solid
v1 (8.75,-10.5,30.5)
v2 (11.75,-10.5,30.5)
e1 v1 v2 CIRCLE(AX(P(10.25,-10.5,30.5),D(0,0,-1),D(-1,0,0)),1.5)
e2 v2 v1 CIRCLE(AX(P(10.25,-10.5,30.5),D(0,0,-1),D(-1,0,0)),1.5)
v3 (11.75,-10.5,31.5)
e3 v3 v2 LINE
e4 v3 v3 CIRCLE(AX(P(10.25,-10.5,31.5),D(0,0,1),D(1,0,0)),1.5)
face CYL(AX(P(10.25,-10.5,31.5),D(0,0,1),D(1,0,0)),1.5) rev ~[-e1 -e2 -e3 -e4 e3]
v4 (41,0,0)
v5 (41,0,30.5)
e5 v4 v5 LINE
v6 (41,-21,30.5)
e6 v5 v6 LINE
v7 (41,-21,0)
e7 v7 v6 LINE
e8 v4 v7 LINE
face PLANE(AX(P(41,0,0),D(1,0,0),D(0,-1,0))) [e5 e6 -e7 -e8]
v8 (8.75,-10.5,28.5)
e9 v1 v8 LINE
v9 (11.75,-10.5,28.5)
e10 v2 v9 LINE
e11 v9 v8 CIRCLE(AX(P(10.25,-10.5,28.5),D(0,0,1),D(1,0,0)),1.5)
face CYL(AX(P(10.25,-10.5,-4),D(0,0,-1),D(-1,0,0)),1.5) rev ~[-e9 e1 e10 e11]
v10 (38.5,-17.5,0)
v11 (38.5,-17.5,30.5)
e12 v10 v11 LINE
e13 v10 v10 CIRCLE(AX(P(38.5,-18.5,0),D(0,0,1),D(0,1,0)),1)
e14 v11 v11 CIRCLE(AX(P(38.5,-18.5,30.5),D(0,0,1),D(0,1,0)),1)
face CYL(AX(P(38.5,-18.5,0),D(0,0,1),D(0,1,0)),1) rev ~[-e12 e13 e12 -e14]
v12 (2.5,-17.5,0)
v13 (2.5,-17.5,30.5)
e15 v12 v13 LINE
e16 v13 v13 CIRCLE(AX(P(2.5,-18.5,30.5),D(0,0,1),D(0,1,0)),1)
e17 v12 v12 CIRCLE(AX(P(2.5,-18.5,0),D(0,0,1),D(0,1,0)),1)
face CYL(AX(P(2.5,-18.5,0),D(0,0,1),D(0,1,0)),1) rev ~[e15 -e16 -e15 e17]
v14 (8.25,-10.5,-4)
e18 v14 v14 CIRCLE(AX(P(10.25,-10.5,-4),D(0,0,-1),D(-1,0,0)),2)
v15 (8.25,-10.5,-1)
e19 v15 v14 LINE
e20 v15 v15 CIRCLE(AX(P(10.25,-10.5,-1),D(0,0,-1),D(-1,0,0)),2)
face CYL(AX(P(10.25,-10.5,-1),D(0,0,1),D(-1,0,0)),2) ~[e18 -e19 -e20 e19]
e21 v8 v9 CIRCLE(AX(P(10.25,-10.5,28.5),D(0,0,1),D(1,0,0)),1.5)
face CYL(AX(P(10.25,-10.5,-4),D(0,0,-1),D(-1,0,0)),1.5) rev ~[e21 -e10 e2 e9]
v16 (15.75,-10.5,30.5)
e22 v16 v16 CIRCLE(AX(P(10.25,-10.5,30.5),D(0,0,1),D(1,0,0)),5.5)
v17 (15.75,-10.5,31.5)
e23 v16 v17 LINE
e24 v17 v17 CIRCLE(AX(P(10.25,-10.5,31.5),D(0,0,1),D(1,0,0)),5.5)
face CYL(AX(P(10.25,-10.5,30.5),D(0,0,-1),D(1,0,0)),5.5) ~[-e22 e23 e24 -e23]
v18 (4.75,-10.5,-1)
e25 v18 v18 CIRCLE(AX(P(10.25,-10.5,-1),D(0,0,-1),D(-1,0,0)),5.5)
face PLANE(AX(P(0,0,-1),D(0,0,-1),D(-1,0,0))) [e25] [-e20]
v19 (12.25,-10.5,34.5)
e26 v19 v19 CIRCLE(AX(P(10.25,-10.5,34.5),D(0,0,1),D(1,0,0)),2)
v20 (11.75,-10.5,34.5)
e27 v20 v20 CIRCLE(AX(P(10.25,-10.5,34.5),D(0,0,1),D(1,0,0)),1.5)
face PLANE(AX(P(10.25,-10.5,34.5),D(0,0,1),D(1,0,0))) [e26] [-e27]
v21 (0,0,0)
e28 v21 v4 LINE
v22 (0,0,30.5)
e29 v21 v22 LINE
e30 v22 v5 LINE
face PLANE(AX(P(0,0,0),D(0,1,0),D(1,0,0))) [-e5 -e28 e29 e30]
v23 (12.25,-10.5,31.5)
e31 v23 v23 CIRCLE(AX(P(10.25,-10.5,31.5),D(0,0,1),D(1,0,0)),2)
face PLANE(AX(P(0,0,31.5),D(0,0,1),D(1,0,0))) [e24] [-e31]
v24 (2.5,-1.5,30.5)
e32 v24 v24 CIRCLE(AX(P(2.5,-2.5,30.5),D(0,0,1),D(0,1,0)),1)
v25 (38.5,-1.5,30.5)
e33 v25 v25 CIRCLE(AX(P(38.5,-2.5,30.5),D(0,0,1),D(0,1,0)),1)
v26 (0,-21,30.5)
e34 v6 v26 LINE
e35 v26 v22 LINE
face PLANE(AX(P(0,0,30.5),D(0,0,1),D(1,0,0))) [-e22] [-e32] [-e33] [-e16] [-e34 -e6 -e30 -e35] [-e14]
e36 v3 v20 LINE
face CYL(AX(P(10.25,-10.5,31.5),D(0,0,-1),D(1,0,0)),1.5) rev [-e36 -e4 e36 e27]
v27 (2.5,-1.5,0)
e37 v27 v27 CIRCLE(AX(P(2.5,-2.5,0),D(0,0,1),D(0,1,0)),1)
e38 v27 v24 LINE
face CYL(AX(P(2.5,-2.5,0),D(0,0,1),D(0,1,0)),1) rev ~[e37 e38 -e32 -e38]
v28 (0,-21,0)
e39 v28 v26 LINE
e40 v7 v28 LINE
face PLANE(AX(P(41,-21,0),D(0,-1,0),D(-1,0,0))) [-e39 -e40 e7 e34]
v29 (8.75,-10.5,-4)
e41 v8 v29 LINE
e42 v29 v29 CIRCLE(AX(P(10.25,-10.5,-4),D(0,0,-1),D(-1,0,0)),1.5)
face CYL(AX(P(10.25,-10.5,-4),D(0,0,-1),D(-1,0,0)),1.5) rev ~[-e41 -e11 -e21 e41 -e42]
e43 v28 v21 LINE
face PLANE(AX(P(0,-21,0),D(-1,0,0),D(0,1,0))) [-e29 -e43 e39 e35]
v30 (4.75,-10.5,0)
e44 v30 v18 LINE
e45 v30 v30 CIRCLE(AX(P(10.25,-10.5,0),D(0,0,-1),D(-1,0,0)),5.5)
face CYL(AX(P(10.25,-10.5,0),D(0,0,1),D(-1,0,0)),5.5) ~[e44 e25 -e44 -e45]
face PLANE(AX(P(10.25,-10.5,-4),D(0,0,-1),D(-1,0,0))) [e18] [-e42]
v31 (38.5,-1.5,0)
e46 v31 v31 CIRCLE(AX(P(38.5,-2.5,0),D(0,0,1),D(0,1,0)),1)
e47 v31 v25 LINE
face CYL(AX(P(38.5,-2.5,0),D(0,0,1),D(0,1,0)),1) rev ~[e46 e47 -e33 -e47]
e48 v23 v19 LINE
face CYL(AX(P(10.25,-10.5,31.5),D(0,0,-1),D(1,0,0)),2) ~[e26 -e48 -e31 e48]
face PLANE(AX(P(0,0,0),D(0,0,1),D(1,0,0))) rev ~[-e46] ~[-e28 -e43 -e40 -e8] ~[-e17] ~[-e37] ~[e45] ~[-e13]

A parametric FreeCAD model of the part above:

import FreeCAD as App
import Part
import Sketcher
from FreeCAD import Vector

doc = App.newDocument("Part")
params = doc.addObject("Spreadsheet::Sheet", "Params")
for row, (alias, value) in enumerate([
    ("sketch1_width", "41 mm"),
    ("sketch1_height", "21 mm"),
    ("pad1_length", "30.5 mm"),
    ("sketch2_diameter", "2 mm"),
    ("hole_diameter", "2 mm"),
    ("sketch3_diameter", "11 mm"),
    ("pad2_length", "1 mm"),
    ("sketch4_diameter", "3 mm"),
    ("pocket1_length", "40 mm"),
    ("sketch5_diameter", "4 mm"),
    ("pad3_length", "3 mm"),
    ("sketch6_diameter", "3 mm"),
    ("pocket2_length", "4 mm"),
    ("sketch7_diameter", "11 mm"),
    ("pad4_length", "1 mm"),
    ("sketch8_diameter", "4 mm"),
    ("sketch8_diameter2", "3 mm"),
    ("pad5_length", "3 mm"),
    ("sketch9_diameter", "3 mm"),
    ("pocket3_length", "3 mm"),
], start=1):
    params.set(f"A{row}", alias)
    params.set(f"B{row}", "=" + value)
    params.setAlias(f"B{row}", alias)

body = doc.addObject("PartDesign::Body", "Body")

sketch1 = body.newObject("Sketcher::SketchObject", "Sketch")
sketch1.AttachmentSupport = (doc.getObject("XY_Plane"), [""])
sketch1.MapMode = "FlatFace"
sketch1.addGeometry([
    Part.LineSegment(Vector(41, 0, 0), Vector(0, 0, 0)),
    Part.LineSegment(Vector(0, 0, 0), Vector(0, -21, 0)),
    Part.LineSegment(Vector(0, -21, 0), Vector(41, -21, 0)),
    Part.LineSegment(Vector(41, -21, 0), Vector(41, 0, 0)),
], False)
sketch1.addConstraint([
    Sketcher.Constraint("Coincident", 0, 2, 1, 1),
    Sketcher.Constraint("Coincident", 1, 2, 2, 1),
    Sketcher.Constraint("Coincident", 2, 2, 3, 1),
    Sketcher.Constraint("Coincident", 3, 2, 0, 1),
    Sketcher.Constraint("Horizontal", 0),
    Sketcher.Constraint("Vertical", 1),
    Sketcher.Constraint("Horizontal", 2),
    Sketcher.Constraint("Vertical", 3),
    Sketcher.Constraint("Coincident", 0, 2, -1, 1),
    Sketcher.Constraint("DistanceX", 0, 2, 0, 1, 41.0),
    Sketcher.Constraint("DistanceY", 1, 2, 1, 1, 21.0),
])
sketch1.setExpression("Constraints[9]", "Params.sketch1_width")
sketch1.setExpression("Constraints[10]", "Params.sketch1_height")
pad1 = body.newObject("PartDesign::Pad", "Pad")
pad1.Profile = sketch1
pad1.setExpression("Length", "Params.pad1_length")

sketch2 = body.newObject("Sketcher::SketchObject", "Sketch001")
sketch2.AttachmentSupport = (doc.getObject("XY_Plane"), [""])
sketch2.MapMode = "FlatFace"
sketch2.addGeometry([
    Part.Circle(Vector(2.5, -2.5, 0), Vector(0, 0, 1), 1),
    Part.Circle(Vector(38.5, -2.5, 0), Vector(0, 0, 1), 1),
    Part.Circle(Vector(2.5, -18.5, 0), Vector(0, 0, 1), 1),
    Part.Circle(Vector(38.5, -18.5, 0), Vector(0, 0, 1), 1),
], False)
sketch2.addConstraint([
    Sketcher.Constraint("Equal", 0, 1),
    Sketcher.Constraint("Equal", 1, 2),
    Sketcher.Constraint("Equal", 2, 3),
    Sketcher.Constraint("Horizontal", 0, 3, 1, 3),
    Sketcher.Constraint("Horizontal", 2, 3, 3, 3),
    Sketcher.Constraint("Vertical", 0, 3, 2, 3),
    Sketcher.Constraint("Vertical", 1, 3, 3, 3),
    Sketcher.Constraint("Diameter", 0, 2.0),
    Sketcher.Constraint("DistanceX", 0, 3, 1, 3, 36.0),
    Sketcher.Constraint("DistanceY", 2, 3, 0, 3, 16.0),
    Sketcher.Constraint("DistanceX", -1, 1, 0, 3, 2.5),
    Sketcher.Constraint("DistanceY", 0, 3, -1, 1, 2.5),
])
sketch2.setExpression("Constraints[7]", "Params.sketch2_diameter")
doc.recompute()
hole = body.newObject("PartDesign::Hole", "Hole")
hole.Profile = sketch2
hole.ThreadType = "None"
hole.setExpression("Diameter", "Params.hole_diameter")
hole.DepthType = "ThroughAll"
hole.Reversed = True

sketch3 = body.newObject("Sketcher::SketchObject", "Sketch002")
sketch3.AttachmentSupport = (doc.getObject("XY_Plane"), [""])
sketch3.MapMode = "FlatFace"
sketch3.addGeometry(Part.Circle(Vector(10, -10, 0), Vector(0, 0, 1), 6), False)
sketch3.addConstraint([
    Sketcher.Constraint("Diameter", 0, 11.0),
    Sketcher.Constraint("DistanceY", 0, 3, -1, 1, 10.5),
    Sketcher.Constraint("DistanceX", -1, 1, 0, 3, 10.25),
])
sketch3.setExpression("Constraints[0]", "Params.sketch3_diameter")
pad2 = body.newObject("PartDesign::Pad", "Pad001")
pad2.Profile = sketch3
pad2.setExpression("Length", "Params.pad2_length")
pad2.Reversed = True

sketch4 = body.newObject("Sketcher::SketchObject", "Sketch003")
sketch4.AttachmentSupport = (doc.getObject("XY_Plane"), [""])
sketch4.MapMode = "FlatFace"
sketch4.AttachmentOffset = App.Placement(Vector(0, 0, -1), App.Rotation())
sketch4.addGeometry(Part.Circle(Vector(10.2, -10.5, 0), Vector(0, 0, 1), 1.5), False)
sketch4.addConstraint([
    Sketcher.Constraint("Diameter", 0, 3.0),
    Sketcher.Constraint("DistanceY", 0, 3, -1, 1, 10.5),
    Sketcher.Constraint("DistanceX", -1, 1, 0, 3, 10.25),
])
sketch4.setExpression("Constraints[0]", "Params.sketch4_diameter")
pocket1 = body.newObject("PartDesign::Pocket", "Pocket")
pocket1.Profile = sketch4
pocket1.setExpression("Length", "Params.pocket1_length")
pocket1.Reversed = True

sketch5 = body.newObject("Sketcher::SketchObject", "Sketch004")
sketch5.AttachmentSupport = (doc.getObject("XY_Plane"), [""])
sketch5.MapMode = "FlatFace"
sketch5.AttachmentOffset = App.Placement(Vector(0, 0, -1), App.Rotation())
sketch5.addGeometry(Part.Circle(Vector(10.2, -10.5, 0), Vector(0, 0, 1), 2), False)
sketch5.addConstraint([
    Sketcher.Constraint("Diameter", 0, 4.0),
    Sketcher.Constraint("DistanceY", 0, 3, -1, 1, 10.5),
    Sketcher.Constraint("DistanceX", -1, 1, 0, 3, 10.25),
])
sketch5.setExpression("Constraints[0]", "Params.sketch5_diameter")
pad3 = body.newObject("PartDesign::Pad", "Pad002")
pad3.Profile = sketch5
pad3.setExpression("Length", "Params.pad3_length")
pad3.Reversed = True

sketch6 = body.newObject("Sketcher::SketchObject", "Sketch005")
sketch6.AttachmentSupport = (doc.getObject("XY_Plane"), [""])
sketch6.MapMode = "FlatFace"
sketch6.AttachmentOffset = App.Placement(Vector(0, 0, -4), App.Rotation())
sketch6.addGeometry(Part.Circle(Vector(10.2, -10.5, 0), Vector(0, 0, 1), 1.5), False)
sketch6.addConstraint([
    Sketcher.Constraint("Diameter", 0, 3.0),
    Sketcher.Constraint("DistanceY", 0, 3, -1, 1, 10.5),
    Sketcher.Constraint("DistanceX", -1, 1, 0, 3, 10.25),
])
sketch6.setExpression("Constraints[0]", "Params.sketch6_diameter")
pocket2 = body.newObject("PartDesign::Pocket", "Pocket001")
pocket2.Profile = sketch6
pocket2.setExpression("Length", "Params.pocket2_length")
pocket2.Reversed = True

sketch7 = body.newObject("Sketcher::SketchObject", "Sketch006")
sketch7.AttachmentSupport = (doc.getObject("XY_Plane"), [""])
sketch7.MapMode = "FlatFace"
sketch7.AttachmentOffset = App.Placement(Vector(0, 0, 30.5), App.Rotation())
sketch7.addGeometry(Part.Circle(Vector(10, -10, 0), Vector(0, 0, 1), 6), False)
sketch7.addConstraint([
    Sketcher.Constraint("Diameter", 0, 11.0),
    Sketcher.Constraint("DistanceY", 0, 3, -1, 1, 10.5),
    Sketcher.Constraint("DistanceX", -1, 1, 0, 3, 10.25),
])
sketch7.setExpression("Constraints[0]", "Params.sketch7_diameter")
pad4 = body.newObject("PartDesign::Pad", "Pad003")
pad4.Profile = sketch7
pad4.setExpression("Length", "Params.pad4_length")

sketch8 = body.newObject("Sketcher::SketchObject", "Sketch007")
sketch8.AttachmentSupport = (doc.getObject("XY_Plane"), [""])
sketch8.MapMode = "FlatFace"
sketch8.AttachmentOffset = App.Placement(Vector(0, 0, 31.5), App.Rotation())
sketch8.addGeometry([
    Part.Circle(Vector(10.2, -10.5, 0), Vector(0, 0, 1), 2),
    Part.Circle(Vector(10.2, -10.5, 0), Vector(0, 0, 1), 1.5),
], False)
sketch8.addConstraint([
    Sketcher.Constraint("Coincident", 1, 3, 0, 3),
    Sketcher.Constraint("Diameter", 0, 4.0),
    Sketcher.Constraint("Diameter", 1, 3.0),
    Sketcher.Constraint("DistanceY", 0, 3, -1, 1, 10.5),
    Sketcher.Constraint("DistanceX", -1, 1, 0, 3, 10.25),
])
sketch8.setExpression("Constraints[1]", "Params.sketch8_diameter")
sketch8.setExpression("Constraints[2]", "Params.sketch8_diameter2")
pad5 = body.newObject("PartDesign::Pad", "Pad004")
pad5.Profile = sketch8
pad5.setExpression("Length", "Params.pad5_length")

sketch9 = body.newObject("Sketcher::SketchObject", "Sketch008")
sketch9.AttachmentSupport = (doc.getObject("XY_Plane"), [""])
sketch9.MapMode = "FlatFace"
sketch9.AttachmentOffset = App.Placement(Vector(0, 0, 31.5), App.Rotation())
sketch9.addGeometry(Part.Circle(Vector(10.2, -10.5, 0), Vector(0, 0, 1), 1.5), False)
sketch9.addConstraint([
    Sketcher.Constraint("Diameter", 0, 3.0),
    Sketcher.Constraint("DistanceY", 0, 3, -1, 1, 10.5),
    Sketcher.Constraint("DistanceX", -1, 1, 0, 3, 10.25),
])
sketch9.setExpression("Constraints[0]", "Params.sketch9_diameter")
pocket3 = body.newObject("PartDesign::Pocket", "Pocket002")
pocket3.Profile = sketch9
pocket3.setExpression("Length", "Params.pocket3_length")

doc.recompute()
